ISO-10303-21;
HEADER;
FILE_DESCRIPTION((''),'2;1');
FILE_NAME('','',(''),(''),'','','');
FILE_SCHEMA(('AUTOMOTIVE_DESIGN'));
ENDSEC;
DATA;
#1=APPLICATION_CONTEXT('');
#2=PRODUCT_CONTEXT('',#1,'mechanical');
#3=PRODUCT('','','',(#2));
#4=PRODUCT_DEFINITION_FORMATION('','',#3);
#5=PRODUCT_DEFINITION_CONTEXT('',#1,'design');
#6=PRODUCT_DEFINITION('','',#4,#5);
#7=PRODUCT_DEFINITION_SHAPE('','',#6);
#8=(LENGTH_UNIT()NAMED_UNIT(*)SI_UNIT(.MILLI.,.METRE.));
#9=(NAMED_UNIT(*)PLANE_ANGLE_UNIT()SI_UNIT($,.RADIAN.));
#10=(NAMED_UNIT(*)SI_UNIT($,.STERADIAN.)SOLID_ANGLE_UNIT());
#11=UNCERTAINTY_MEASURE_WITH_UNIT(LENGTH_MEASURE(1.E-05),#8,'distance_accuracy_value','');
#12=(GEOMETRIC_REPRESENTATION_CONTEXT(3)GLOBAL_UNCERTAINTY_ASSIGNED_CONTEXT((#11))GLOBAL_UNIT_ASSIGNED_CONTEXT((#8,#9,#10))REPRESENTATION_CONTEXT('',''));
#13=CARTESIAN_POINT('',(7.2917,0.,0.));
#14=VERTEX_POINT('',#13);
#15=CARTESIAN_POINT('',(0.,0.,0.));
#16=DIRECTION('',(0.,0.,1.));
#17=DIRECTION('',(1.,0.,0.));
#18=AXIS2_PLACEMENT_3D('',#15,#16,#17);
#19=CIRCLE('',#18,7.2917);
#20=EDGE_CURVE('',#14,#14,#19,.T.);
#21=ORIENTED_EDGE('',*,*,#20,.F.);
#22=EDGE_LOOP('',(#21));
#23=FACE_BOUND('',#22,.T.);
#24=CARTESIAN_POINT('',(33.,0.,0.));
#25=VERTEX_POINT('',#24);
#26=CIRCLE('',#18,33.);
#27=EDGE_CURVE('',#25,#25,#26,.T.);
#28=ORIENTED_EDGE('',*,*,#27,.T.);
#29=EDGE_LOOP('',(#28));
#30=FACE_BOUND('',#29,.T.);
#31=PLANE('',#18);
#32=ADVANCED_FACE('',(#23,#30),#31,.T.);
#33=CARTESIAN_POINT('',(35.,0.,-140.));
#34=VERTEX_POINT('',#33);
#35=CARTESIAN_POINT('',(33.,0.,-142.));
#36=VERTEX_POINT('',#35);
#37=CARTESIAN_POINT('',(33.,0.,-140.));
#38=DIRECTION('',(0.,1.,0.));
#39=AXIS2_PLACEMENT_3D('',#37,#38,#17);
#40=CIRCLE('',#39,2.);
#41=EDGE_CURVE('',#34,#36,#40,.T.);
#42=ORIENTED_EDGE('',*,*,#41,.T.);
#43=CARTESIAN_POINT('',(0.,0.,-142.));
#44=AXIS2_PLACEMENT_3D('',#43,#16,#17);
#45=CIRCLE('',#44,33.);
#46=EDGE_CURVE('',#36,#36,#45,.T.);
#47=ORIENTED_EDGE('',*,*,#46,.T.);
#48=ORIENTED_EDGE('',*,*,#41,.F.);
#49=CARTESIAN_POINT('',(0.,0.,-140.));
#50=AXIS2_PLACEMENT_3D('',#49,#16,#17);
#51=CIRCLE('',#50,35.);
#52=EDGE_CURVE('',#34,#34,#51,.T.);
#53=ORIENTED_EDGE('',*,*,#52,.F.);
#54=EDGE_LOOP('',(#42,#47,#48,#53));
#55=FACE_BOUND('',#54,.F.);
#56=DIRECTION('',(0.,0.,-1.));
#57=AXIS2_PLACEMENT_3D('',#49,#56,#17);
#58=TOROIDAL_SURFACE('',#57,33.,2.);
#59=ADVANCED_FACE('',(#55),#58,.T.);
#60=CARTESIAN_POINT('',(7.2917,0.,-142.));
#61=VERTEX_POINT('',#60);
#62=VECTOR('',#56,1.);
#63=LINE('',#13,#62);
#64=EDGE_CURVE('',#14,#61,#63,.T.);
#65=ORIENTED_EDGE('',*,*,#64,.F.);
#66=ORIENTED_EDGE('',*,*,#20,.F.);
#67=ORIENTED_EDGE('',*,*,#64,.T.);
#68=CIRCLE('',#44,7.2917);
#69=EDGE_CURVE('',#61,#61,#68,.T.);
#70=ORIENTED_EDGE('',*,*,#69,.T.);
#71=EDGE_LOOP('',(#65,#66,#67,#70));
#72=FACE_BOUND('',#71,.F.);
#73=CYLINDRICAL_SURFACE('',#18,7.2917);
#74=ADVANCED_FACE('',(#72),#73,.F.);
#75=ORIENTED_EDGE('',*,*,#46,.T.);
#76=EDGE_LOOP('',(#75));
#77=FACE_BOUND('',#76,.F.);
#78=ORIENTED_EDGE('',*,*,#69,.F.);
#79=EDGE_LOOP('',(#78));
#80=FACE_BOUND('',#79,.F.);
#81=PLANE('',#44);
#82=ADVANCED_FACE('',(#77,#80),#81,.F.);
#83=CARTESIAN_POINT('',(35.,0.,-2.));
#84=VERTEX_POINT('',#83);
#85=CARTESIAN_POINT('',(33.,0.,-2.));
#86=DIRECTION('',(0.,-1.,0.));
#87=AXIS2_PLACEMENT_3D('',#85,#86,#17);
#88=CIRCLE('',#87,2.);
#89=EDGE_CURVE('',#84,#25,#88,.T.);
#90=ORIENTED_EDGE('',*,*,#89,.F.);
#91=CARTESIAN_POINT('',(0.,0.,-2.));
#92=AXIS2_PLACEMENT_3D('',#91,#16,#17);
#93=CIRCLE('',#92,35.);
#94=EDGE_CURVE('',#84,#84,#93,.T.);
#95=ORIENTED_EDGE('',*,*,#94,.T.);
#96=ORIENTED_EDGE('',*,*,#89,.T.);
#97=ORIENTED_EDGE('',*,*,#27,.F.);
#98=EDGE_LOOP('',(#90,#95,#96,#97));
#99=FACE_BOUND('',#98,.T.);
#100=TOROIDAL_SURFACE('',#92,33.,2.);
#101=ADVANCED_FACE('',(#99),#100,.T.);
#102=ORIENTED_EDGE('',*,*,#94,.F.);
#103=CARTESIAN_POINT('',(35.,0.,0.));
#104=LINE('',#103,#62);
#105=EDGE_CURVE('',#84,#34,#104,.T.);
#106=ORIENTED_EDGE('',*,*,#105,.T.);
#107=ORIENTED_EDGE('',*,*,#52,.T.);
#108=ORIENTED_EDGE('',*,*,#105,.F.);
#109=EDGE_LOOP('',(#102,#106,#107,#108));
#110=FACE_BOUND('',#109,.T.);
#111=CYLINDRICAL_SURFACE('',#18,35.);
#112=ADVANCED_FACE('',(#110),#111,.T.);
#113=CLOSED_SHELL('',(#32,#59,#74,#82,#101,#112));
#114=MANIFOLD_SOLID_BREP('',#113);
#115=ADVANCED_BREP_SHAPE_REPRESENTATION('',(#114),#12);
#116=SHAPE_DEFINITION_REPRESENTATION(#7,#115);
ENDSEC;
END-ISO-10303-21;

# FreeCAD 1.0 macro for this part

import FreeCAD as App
import Part
import Sketcher
from FreeCAD import Vector


def edges_at(feature, points):
    """Names of the edges that pass closest to the given points."""
    edges = feature.Shape.Edges
    near = lambda p: min(range(len(edges)), key=lambda i: edges[i].distToShape(Part.Vertex(*p))[0])
    return sorted({f"Edge{near(p) + 1}" for p in points})

doc = App.newDocument("Part")
body = doc.addObject("PartDesign::Body", "Body")

sketch1 = doc.addObject("Sketcher::SketchObject", "Sketch")
body.addObject(sketch1)
sketch1.AttachmentSupport = (doc.XY_Plane, [""])
sketch1.MapMode = "FlatFace"
sketch1.addGeometry([
    Part.Circle(Vector(0, 0, 0), Vector(0, 0, 1), 35),
    Part.Circle(Vector(0, 0, 0), Vector(0, 0, 1), 7),
], False)
sketch1.addConstraint([
    Sketcher.Constraint("Coincident", 0, 3, -1, 1),
    Sketcher.Constraint("Coincident", 1, 3, -1, 1),
    Sketcher.Constraint("Diameter", 0, 70.0),
    Sketcher.Constraint("Diameter", 1, 14.5834),
])
pad1 = doc.addObject("PartDesign::Pad", "Pad")
body.addObject(pad1)
pad1.Profile = sketch1
pad1.Length = 142
pad1.Reversed = True
doc.recompute()

fillet = doc.addObject("PartDesign::Fillet", "Fillet")
body.addObject(fillet)
fillet.Base = (pad1, edges_at(pad1, [(-35, 0, 0), (-35, 0, -142)]))
fillet.Radius = 2

doc.recompute()
